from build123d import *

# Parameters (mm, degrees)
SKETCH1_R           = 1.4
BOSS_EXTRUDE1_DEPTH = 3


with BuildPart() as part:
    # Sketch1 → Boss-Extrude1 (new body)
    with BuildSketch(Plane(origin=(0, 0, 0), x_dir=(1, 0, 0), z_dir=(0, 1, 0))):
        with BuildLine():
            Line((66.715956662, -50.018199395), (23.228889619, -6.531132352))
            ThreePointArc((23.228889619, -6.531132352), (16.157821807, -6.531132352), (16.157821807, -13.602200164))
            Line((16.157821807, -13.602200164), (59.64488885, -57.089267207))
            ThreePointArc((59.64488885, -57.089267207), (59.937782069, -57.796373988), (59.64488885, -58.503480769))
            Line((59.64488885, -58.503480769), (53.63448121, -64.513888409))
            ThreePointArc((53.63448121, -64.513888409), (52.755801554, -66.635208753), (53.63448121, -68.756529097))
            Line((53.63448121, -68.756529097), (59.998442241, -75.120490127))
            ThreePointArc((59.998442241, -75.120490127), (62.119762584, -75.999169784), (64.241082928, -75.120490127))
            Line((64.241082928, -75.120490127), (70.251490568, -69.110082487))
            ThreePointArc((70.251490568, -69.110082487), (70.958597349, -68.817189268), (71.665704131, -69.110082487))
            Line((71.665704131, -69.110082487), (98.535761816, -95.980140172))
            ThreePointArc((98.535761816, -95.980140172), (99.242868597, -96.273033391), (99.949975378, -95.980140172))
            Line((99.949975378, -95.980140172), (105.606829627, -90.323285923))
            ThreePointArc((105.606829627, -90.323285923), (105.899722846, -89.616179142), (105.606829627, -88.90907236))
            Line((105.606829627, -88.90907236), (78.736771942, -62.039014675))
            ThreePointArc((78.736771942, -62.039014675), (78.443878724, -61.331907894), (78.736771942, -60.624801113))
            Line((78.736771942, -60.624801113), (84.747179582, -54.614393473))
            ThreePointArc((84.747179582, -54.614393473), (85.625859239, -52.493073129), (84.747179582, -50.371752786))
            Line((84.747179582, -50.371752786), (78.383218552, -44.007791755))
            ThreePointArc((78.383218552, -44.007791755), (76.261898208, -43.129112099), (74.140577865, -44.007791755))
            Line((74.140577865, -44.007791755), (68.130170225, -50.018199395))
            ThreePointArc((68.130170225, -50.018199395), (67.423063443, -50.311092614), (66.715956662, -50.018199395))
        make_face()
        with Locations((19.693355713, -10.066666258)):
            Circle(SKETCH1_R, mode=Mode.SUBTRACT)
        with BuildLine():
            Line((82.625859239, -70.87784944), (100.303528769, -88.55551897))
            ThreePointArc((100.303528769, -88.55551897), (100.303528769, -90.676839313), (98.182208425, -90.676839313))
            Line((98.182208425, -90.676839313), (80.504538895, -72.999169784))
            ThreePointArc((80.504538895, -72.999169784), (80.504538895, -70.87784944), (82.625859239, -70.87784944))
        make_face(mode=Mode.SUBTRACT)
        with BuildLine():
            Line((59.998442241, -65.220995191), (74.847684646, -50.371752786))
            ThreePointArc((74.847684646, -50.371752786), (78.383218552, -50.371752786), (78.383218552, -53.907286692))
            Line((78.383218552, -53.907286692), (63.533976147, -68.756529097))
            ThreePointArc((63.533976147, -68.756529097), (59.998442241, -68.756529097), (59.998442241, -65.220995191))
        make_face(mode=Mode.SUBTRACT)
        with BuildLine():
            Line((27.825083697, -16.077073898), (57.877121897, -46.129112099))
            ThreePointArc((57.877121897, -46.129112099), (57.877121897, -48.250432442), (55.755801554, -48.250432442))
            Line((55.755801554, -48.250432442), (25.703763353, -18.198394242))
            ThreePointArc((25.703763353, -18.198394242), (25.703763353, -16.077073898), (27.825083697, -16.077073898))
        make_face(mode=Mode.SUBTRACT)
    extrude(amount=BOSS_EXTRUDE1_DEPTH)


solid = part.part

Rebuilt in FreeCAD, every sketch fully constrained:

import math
import FreeCAD as App
import Part
import Sketcher
from FreeCAD import Vector
Q = App.Units.Quantity

doc = App.newDocument("Part")
params = doc.addObject("Spreadsheet::Sheet", "Params")
for row, (alias, value) in enumerate([
    ("sketch1_radius", "5 mm"),
    ("sketch1_radius2", "1 mm"),
    ("sketch1_radius3", "3 mm"),
    ("sketch1_diameter", "2.8 mm"),
    ("sketch1_radius4", "1.5 mm"),
    ("pad1_length", "3 mm"),
], start=1):
    params.set(f"A{row}", alias)
    params.set(f"B{row}", "=" + value)
    params.setAlias(f"B{row}", alias)

body = doc.addObject("PartDesign::Body", "Body")

sketch1 = body.newObject("Sketcher::SketchObject", "Sketch")
sketch1.AttachmentSupport = (doc.getObject("XZ_Plane"), [""])
sketch1.MapMode = "FlatFace"
sketch1.addGeometry(Part.LineSegment(Vector(66.715957, 50.018199, 0), Vector(23.22889, 6.531132, 0)), False)
sketch1.addGeometry(Part.ArcOfCircle(Part.Circle(Vector(19.693356, 10.066666, 0), Vector(0, 0, 1), 5), math.radians(135), math.radians(315)), False)
sketch1.addGeometry(Part.LineSegment(Vector(16.157822, 13.6022, 0), Vector(59.644889, 57.089267, 0)), False)
sketch1.addGeometry(Part.ArcOfCircle(Part.Circle(Vector(58.937782, 57.796374, 0), Vector(0, 0, 1), 1), math.radians(-45), math.radians(45)), False)
sketch1.addGeometry(Part.LineSegment(Vector(59.644889, 58.503481, 0), Vector(53.634481, 64.513888, 0)), False)
sketch1.addGeometry(Part.ArcOfCircle(Part.Circle(Vector(55.755802, 66.635209, 0), Vector(0, 0, 1), 3), math.radians(135), math.radians(225)), False)
sketch1.addGeometry(Part.LineSegment(Vector(53.634481, 68.756529, 0), Vector(59.998442, 75.12049, 0)), False)
sketch1.addGeometry(Part.ArcOfCircle(Part.Circle(Vector(62.119763, 72.99917, 0), Vector(0, 0, 1), 3), math.radians(45), math.radians(135)), False)
sketch1.addGeometry(Part.LineSegment(Vector(64.241083, 75.12049, 0), Vector(70.251491, 69.110082, 0)), False)
sketch1.addGeometry(Part.ArcOfCircle(Part.Circle(Vector(70.958597, 69.817189, 0), Vector(0, 0, 1), 1), math.radians(-135), math.radians(-45)), False)
sketch1.addGeometry(Part.LineSegment(Vector(71.665704, 69.110082, 0), Vector(98.535762, 95.98014, 0)), False)
sketch1.addGeometry(Part.ArcOfCircle(Part.Circle(Vector(99.242869, 95.273033, 0), Vector(0, 0, 1), 1), math.radians(45), math.radians(135)), False)
sketch1.addGeometry(Part.LineSegment(Vector(99.949975, 95.98014, 0), Vector(105.60683, 90.323286, 0)), False)
sketch1.addGeometry(Part.ArcOfCircle(Part.Circle(Vector(104.899723, 89.616179, 0), Vector(0, 0, 1), 1), math.radians(-45), math.radians(45)), False)
sketch1.addGeometry(Part.LineSegment(Vector(105.60683, 88.909072, 0), Vector(78.736772, 62.039015, 0)), False)
sketch1.addGeometry(Part.ArcOfCircle(Part.Circle(Vector(79.443879, 61.331908, 0), Vector(0, 0, 1), 1), math.radians(135), math.radians(225)), False)
sketch1.addGeometry(Part.LineSegment(Vector(78.736772, 60.624801, 0), Vector(84.74718, 54.614393, 0)), False)
sketch1.addGeometry(Part.ArcOfCircle(Part.Circle(Vector(82.625859, 52.493073, 0), Vector(0, 0, 1), 3), math.radians(-45), math.radians(45)), False)
sketch1.addGeometry(Part.LineSegment(Vector(84.74718, 50.371753, 0), Vector(78.383219, 44.007792, 0)), False)
sketch1.addGeometry(Part.ArcOfCircle(Part.Circle(Vector(76.261898, 46.129112, 0), Vector(0, 0, 1), 3), math.radians(-135), math.radians(-45)), False)
sketch1.addGeometry(Part.LineSegment(Vector(74.140578, 44.007792, 0), Vector(68.13017, 50.018199, 0)), False)
sketch1.addGeometry(Part.ArcOfCircle(Part.Circle(Vector(67.423063, 49.311093, 0), Vector(0, 0, 1), 1), math.radians(45), math.radians(135)), False)
sketch1.addGeometry(Part.ArcOfCircle(Part.Circle(Vector(81.565199, 71.93851, 0), Vector(0, 0, 1), 1.5), math.radians(135), math.radians(315)), False)
sketch1.addGeometry(Part.LineSegment(Vector(82.625859, 70.877849, 0), Vector(100.303529, 88.555519, 0)), False)
sketch1.addGeometry(Part.ArcOfCircle(Part.Circle(Vector(99.242869, 89.616179, 0), Vector(0, 0, 1), 1.5), math.radians(-45), math.radians(135)), False)
sketch1.addGeometry(Part.LineSegment(Vector(98.182208, 90.676839, 0), Vector(80.504539, 72.99917, 0)), False)
sketch1.addGeometry(Part.ArcOfCircle(Part.Circle(Vector(61.766209, 66.988762, 0), Vector(0, 0, 1), 2.5), math.radians(45), math.radians(225)), False)
sketch1.addGeometry(Part.LineSegment(Vector(59.998442, 65.220995, 0), Vector(74.847685, 50.371753, 0)), False)
sketch1.addGeometry(Part.ArcOfCircle(Part.Circle(Vector(76.615452, 52.13952, 0), Vector(0, 0, 1), 2.5), math.radians(-135), math.radians(45)), False)
sketch1.addGeometry(Part.LineSegment(Vector(78.383219, 53.907287, 0), Vector(63.533976, 68.756529, 0)), False)
sketch1.addGeometry(Part.ArcOfCircle(Part.Circle(Vector(26.764424, 17.137734, 0), Vector(0, 0, 1), 1.5), math.radians(135), math.radians(315)), False)
sketch1.addGeometry(Part.LineSegment(Vector(27.825084, 16.077074, 0), Vector(57.877122, 46.129112, 0)), False)
sketch1.addGeometry(Part.ArcOfCircle(Part.Circle(Vector(56.816462, 47.189772, 0), Vector(0, 0, 1), 1.5), math.radians(-45), math.radians(135)), False)
sketch1.addGeometry(Part.LineSegment(Vector(55.755802, 48.250432, 0), Vector(25.703763, 18.198394, 0)), False)
sketch1.addGeometry(Part.Circle(Vector(19.693356, 10.066666, 0), Vector(0, 0, 1), 1.4), False)
sketch1.addConstraint(Sketcher.Constraint("Tangent", 0, 2, 1, 2))
sketch1.addConstraint(Sketcher.Constraint("Tangent", 1, 1, 2, 1))
sketch1.addConstraint(Sketcher.Constraint("Tangent", 2, 2, 3, 1))
sketch1.addConstraint(Sketcher.Constraint("Tangent", 3, 2, 4, 1))
sketch1.addConstraint(Sketcher.Constraint("Tangent", 4, 2, 5, 2))
sketch1.addConstraint(Sketcher.Constraint("Tangent", 5, 1, 6, 1))
sketch1.addConstraint(Sketcher.Constraint("Tangent", 6, 2, 7, 2))
sketch1.addConstraint(Sketcher.Constraint("Tangent", 7, 1, 8, 1))
sketch1.addConstraint(Sketcher.Constraint("Tangent", 8, 2, 9, 1))
sketch1.addConstraint(Sketcher.Constraint("Tangent", 9, 2, 10, 1))
sketch1.addConstraint(Sketcher.Constraint("Tangent", 10, 2, 11, 2))
sketch1.addConstraint(Sketcher.Constraint("Tangent", 11, 1, 12, 1))
sketch1.addConstraint(Sketcher.Constraint("Tangent", 12, 2, 13, 2))
sketch1.addConstraint(Sketcher.Constraint("Tangent", 13, 1, 14, 1))
sketch1.addConstraint(Sketcher.Constraint("Tangent", 14, 2, 15, 1))
sketch1.addConstraint(Sketcher.Constraint("Tangent", 15, 2, 16, 1))
sketch1.addConstraint(Sketcher.Constraint("Tangent", 16, 2, 17, 2))
sketch1.addConstraint(Sketcher.Constraint("Tangent", 17, 1, 18, 1))
sketch1.addConstraint(Sketcher.Constraint("Tangent", 18, 2, 19, 2))
sketch1.addConstraint(Sketcher.Constraint("Tangent", 19, 1, 20, 1))
sketch1.addConstraint(Sketcher.Constraint("Tangent", 20, 2, 21, 1))
sketch1.addConstraint(Sketcher.Constraint("Tangent", 21, 2, 0, 1))
sketch1.addConstraint(Sketcher.Constraint("Tangent", 22, 2, 23, 1))
sketch1.addConstraint(Sketcher.Constraint("Tangent", 23, 2, 24, 1))
sketch1.addConstraint(Sketcher.Constraint("Tangent", 24, 2, 25, 1))
sketch1.addConstraint(Sketcher.Constraint("Tangent", 25, 2, 22, 1))
sketch1.addConstraint(Sketcher.Constraint("Tangent", 26, 2, 27, 1))
sketch1.addConstraint(Sketcher.Constraint("Tangent", 27, 2, 28, 1))
sketch1.addConstraint(Sketcher.Constraint("Tangent", 28, 2, 29, 1))
sketch1.addConstraint(Sketcher.Constraint("Tangent", 29, 2, 26, 1))
sketch1.addConstraint(Sketcher.Constraint("Tangent", 30, 2, 31, 1))
sketch1.addConstraint(Sketcher.Constraint("Tangent", 31, 2, 32, 1))
sketch1.addConstraint(Sketcher.Constraint("Tangent", 32, 2, 33, 1))
sketch1.addConstraint(Sketcher.Constraint("Tangent", 33, 2, 30, 1))
sketch1.addConstraint(Sketcher.Constraint("Coincident", 34, 3, 1, 3))
sketch1.addConstraint(Sketcher.Constraint("Equal", 5, 7))
sketch1.addConstraint(Sketcher.Constraint("Equal", 3, 9))
sketch1.addConstraint(Sketcher.Constraint("Equal", 9, 11))
sketch1.addConstraint(Sketcher.Constraint("Equal", 11, 13))
sketch1.addConstraint(Sketcher.Constraint("Equal", 13, 15))
sketch1.addConstraint(Sketcher.Constraint("Equal", 7, 17))
sketch1.addConstraint(Sketcher.Constraint("Equal", 17, 19))
sketch1.addConstraint(Sketcher.Constraint("Equal", 15, 21))
sketch1.addConstraint(Sketcher.Constraint("Equal", 22, 24))
sketch1.addConstraint(Sketcher.Constraint("Equal", 26, 28))
sketch1.addConstraint(Sketcher.Constraint("Equal", 24, 30))
sketch1.addConstraint(Sketcher.Constraint("Equal", 30, 32))
sketch1.addConstraint(Sketcher.Constraint("Parallel", 0, 2))
sketch1.addConstraint(Sketcher.Constraint("Perpendicular", 2, 4))
sketch1.addConstraint(Sketcher.Constraint("Perpendicular", 4, 6))
sketch1.addConstraint(Sketcher.Constraint("Perpendicular", 6, 8))
sketch1.addConstraint(Sketcher.Constraint("Perpendicular", 8, 10))
sketch1.addConstraint(Sketcher.Constraint("Perpendicular", 10, 12))
sketch1.addConstraint(Sketcher.Constraint("Perpendicular", 12, 14))
sketch1.addConstraint(Sketcher.Constraint("Perpendicular", 14, 16))
sketch1.addConstraint(Sketcher.Constraint("Perpendicular", 16, 18))
sketch1.addConstraint(Sketcher.Constraint("Perpendicular", 18, 20))
sketch1.addConstraint(Sketcher.Constraint("Perpendicular", 20, 23))
sketch1.addConstraint(Sketcher.Constraint("Perpendicular", 25, 27))
sketch1.addConstraint(Sketcher.Constraint("Perpendicular", 29, 31))
sketch1.addConstraint(Sketcher.Constraint("Horizontal", 13, 3, 24, 3))
sketch1.addConstraint(Sketcher.Constraint("Horizontal", 6, 2, 7, 1))
sketch1.addConstraint(Sketcher.Constraint("Horizontal", 7, 3, 25, 2))
sketch1.addConstraint(Sketcher.Constraint("Horizontal", 17, 1, 27, 2))
sketch1.addConstraint(Sketcher.Constraint("Horizontal", 5, 1, 29, 2))
sketch1.addConstraint(Sketcher.Constraint("Horizontal", 19, 3, 31, 2))
sketch1.addConstraint(Sketcher.Constraint("Vertical", 11, 3, 24, 3))
sketch1.addConstraint(Sketcher.Constraint("Vertical", 17, 3, 22, 2))
sketch1.addConstraint(Sketcher.Constraint("Vertical", 6, 2, 26, 2))
sketch1.addConstraint(Sketcher.Constraint("Vertical", 18, 2, 28, 2))
sketch1.addConstraint(Sketcher.Constraint("Vertical", 5, 3, 32, 2))
sketch1.addConstraint(Sketcher.Constraint("Equal", 0, 2))
sketch1.addConstraint(Sketcher.Constraint("Equal", 4, 8))
sketch1.addConstraint(Sketcher.Constraint("Equal", 16, 20))
sketch1.addConstraint(Sketcher.Constraint("Radius", 1, Q("5 mm")))
sketch1.addConstraint(Sketcher.Constraint("Radius", 3, Q("1 mm")))
sketch1.addConstraint(Sketcher.Constraint("Radius", 5, Q("3 mm")))
sketch1.addConstraint(Sketcher.Constraint("Diameter", 34, Q("2.8 mm")))
sketch1.addConstraint(Sketcher.Constraint("Radius", 22, Q("1.5 mm")))
sketch1.addConstraint(Sketcher.Constraint("Radius", 26, Q("2.5 mm")))
sketch1.addConstraint(Sketcher.Constraint("Distance", 6, Q("9 mm")))
sketch1.addConstraint(Sketcher.Constraint("Distance", 10, Q("38 mm")))
sketch1.addConstraint(Sketcher.Constraint("Distance", 23, Q("25 mm")))
sketch1.addConstraint(Sketcher.Constraint("Distance", 0, Q("61.5 mm")))
sketch1.addConstraint(Sketcher.Constraint("Distance", 31, Q("42.5 mm")))
sketch1.addConstraint(Sketcher.Constraint("DistanceX", -1, 1, 5, 3, Q("55.755802 mm")))
sketch1.addConstraint(Sketcher.Constraint("DistanceY", -1, 1, 1, 1, Q("13.6022 mm")))
sketch1.setExpression("Constraints[74]", "Params.sketch1_radius")
sketch1.setExpression("Constraints[75]", "Params.sketch1_radius2")
sketch1.setExpression("Constraints[76]", "Params.sketch1_radius3")
sketch1.setExpression("Constraints[77]", "Params.sketch1_diameter")
sketch1.setExpression("Constraints[78]", "Params.sketch1_radius4")
pad1 = body.newObject("PartDesign::Pad", "Pad")
pad1.Profile = sketch1
pad1.setExpression("Length", "Params.pad1_length")
pad1.Reversed = True

doc.recompute()
